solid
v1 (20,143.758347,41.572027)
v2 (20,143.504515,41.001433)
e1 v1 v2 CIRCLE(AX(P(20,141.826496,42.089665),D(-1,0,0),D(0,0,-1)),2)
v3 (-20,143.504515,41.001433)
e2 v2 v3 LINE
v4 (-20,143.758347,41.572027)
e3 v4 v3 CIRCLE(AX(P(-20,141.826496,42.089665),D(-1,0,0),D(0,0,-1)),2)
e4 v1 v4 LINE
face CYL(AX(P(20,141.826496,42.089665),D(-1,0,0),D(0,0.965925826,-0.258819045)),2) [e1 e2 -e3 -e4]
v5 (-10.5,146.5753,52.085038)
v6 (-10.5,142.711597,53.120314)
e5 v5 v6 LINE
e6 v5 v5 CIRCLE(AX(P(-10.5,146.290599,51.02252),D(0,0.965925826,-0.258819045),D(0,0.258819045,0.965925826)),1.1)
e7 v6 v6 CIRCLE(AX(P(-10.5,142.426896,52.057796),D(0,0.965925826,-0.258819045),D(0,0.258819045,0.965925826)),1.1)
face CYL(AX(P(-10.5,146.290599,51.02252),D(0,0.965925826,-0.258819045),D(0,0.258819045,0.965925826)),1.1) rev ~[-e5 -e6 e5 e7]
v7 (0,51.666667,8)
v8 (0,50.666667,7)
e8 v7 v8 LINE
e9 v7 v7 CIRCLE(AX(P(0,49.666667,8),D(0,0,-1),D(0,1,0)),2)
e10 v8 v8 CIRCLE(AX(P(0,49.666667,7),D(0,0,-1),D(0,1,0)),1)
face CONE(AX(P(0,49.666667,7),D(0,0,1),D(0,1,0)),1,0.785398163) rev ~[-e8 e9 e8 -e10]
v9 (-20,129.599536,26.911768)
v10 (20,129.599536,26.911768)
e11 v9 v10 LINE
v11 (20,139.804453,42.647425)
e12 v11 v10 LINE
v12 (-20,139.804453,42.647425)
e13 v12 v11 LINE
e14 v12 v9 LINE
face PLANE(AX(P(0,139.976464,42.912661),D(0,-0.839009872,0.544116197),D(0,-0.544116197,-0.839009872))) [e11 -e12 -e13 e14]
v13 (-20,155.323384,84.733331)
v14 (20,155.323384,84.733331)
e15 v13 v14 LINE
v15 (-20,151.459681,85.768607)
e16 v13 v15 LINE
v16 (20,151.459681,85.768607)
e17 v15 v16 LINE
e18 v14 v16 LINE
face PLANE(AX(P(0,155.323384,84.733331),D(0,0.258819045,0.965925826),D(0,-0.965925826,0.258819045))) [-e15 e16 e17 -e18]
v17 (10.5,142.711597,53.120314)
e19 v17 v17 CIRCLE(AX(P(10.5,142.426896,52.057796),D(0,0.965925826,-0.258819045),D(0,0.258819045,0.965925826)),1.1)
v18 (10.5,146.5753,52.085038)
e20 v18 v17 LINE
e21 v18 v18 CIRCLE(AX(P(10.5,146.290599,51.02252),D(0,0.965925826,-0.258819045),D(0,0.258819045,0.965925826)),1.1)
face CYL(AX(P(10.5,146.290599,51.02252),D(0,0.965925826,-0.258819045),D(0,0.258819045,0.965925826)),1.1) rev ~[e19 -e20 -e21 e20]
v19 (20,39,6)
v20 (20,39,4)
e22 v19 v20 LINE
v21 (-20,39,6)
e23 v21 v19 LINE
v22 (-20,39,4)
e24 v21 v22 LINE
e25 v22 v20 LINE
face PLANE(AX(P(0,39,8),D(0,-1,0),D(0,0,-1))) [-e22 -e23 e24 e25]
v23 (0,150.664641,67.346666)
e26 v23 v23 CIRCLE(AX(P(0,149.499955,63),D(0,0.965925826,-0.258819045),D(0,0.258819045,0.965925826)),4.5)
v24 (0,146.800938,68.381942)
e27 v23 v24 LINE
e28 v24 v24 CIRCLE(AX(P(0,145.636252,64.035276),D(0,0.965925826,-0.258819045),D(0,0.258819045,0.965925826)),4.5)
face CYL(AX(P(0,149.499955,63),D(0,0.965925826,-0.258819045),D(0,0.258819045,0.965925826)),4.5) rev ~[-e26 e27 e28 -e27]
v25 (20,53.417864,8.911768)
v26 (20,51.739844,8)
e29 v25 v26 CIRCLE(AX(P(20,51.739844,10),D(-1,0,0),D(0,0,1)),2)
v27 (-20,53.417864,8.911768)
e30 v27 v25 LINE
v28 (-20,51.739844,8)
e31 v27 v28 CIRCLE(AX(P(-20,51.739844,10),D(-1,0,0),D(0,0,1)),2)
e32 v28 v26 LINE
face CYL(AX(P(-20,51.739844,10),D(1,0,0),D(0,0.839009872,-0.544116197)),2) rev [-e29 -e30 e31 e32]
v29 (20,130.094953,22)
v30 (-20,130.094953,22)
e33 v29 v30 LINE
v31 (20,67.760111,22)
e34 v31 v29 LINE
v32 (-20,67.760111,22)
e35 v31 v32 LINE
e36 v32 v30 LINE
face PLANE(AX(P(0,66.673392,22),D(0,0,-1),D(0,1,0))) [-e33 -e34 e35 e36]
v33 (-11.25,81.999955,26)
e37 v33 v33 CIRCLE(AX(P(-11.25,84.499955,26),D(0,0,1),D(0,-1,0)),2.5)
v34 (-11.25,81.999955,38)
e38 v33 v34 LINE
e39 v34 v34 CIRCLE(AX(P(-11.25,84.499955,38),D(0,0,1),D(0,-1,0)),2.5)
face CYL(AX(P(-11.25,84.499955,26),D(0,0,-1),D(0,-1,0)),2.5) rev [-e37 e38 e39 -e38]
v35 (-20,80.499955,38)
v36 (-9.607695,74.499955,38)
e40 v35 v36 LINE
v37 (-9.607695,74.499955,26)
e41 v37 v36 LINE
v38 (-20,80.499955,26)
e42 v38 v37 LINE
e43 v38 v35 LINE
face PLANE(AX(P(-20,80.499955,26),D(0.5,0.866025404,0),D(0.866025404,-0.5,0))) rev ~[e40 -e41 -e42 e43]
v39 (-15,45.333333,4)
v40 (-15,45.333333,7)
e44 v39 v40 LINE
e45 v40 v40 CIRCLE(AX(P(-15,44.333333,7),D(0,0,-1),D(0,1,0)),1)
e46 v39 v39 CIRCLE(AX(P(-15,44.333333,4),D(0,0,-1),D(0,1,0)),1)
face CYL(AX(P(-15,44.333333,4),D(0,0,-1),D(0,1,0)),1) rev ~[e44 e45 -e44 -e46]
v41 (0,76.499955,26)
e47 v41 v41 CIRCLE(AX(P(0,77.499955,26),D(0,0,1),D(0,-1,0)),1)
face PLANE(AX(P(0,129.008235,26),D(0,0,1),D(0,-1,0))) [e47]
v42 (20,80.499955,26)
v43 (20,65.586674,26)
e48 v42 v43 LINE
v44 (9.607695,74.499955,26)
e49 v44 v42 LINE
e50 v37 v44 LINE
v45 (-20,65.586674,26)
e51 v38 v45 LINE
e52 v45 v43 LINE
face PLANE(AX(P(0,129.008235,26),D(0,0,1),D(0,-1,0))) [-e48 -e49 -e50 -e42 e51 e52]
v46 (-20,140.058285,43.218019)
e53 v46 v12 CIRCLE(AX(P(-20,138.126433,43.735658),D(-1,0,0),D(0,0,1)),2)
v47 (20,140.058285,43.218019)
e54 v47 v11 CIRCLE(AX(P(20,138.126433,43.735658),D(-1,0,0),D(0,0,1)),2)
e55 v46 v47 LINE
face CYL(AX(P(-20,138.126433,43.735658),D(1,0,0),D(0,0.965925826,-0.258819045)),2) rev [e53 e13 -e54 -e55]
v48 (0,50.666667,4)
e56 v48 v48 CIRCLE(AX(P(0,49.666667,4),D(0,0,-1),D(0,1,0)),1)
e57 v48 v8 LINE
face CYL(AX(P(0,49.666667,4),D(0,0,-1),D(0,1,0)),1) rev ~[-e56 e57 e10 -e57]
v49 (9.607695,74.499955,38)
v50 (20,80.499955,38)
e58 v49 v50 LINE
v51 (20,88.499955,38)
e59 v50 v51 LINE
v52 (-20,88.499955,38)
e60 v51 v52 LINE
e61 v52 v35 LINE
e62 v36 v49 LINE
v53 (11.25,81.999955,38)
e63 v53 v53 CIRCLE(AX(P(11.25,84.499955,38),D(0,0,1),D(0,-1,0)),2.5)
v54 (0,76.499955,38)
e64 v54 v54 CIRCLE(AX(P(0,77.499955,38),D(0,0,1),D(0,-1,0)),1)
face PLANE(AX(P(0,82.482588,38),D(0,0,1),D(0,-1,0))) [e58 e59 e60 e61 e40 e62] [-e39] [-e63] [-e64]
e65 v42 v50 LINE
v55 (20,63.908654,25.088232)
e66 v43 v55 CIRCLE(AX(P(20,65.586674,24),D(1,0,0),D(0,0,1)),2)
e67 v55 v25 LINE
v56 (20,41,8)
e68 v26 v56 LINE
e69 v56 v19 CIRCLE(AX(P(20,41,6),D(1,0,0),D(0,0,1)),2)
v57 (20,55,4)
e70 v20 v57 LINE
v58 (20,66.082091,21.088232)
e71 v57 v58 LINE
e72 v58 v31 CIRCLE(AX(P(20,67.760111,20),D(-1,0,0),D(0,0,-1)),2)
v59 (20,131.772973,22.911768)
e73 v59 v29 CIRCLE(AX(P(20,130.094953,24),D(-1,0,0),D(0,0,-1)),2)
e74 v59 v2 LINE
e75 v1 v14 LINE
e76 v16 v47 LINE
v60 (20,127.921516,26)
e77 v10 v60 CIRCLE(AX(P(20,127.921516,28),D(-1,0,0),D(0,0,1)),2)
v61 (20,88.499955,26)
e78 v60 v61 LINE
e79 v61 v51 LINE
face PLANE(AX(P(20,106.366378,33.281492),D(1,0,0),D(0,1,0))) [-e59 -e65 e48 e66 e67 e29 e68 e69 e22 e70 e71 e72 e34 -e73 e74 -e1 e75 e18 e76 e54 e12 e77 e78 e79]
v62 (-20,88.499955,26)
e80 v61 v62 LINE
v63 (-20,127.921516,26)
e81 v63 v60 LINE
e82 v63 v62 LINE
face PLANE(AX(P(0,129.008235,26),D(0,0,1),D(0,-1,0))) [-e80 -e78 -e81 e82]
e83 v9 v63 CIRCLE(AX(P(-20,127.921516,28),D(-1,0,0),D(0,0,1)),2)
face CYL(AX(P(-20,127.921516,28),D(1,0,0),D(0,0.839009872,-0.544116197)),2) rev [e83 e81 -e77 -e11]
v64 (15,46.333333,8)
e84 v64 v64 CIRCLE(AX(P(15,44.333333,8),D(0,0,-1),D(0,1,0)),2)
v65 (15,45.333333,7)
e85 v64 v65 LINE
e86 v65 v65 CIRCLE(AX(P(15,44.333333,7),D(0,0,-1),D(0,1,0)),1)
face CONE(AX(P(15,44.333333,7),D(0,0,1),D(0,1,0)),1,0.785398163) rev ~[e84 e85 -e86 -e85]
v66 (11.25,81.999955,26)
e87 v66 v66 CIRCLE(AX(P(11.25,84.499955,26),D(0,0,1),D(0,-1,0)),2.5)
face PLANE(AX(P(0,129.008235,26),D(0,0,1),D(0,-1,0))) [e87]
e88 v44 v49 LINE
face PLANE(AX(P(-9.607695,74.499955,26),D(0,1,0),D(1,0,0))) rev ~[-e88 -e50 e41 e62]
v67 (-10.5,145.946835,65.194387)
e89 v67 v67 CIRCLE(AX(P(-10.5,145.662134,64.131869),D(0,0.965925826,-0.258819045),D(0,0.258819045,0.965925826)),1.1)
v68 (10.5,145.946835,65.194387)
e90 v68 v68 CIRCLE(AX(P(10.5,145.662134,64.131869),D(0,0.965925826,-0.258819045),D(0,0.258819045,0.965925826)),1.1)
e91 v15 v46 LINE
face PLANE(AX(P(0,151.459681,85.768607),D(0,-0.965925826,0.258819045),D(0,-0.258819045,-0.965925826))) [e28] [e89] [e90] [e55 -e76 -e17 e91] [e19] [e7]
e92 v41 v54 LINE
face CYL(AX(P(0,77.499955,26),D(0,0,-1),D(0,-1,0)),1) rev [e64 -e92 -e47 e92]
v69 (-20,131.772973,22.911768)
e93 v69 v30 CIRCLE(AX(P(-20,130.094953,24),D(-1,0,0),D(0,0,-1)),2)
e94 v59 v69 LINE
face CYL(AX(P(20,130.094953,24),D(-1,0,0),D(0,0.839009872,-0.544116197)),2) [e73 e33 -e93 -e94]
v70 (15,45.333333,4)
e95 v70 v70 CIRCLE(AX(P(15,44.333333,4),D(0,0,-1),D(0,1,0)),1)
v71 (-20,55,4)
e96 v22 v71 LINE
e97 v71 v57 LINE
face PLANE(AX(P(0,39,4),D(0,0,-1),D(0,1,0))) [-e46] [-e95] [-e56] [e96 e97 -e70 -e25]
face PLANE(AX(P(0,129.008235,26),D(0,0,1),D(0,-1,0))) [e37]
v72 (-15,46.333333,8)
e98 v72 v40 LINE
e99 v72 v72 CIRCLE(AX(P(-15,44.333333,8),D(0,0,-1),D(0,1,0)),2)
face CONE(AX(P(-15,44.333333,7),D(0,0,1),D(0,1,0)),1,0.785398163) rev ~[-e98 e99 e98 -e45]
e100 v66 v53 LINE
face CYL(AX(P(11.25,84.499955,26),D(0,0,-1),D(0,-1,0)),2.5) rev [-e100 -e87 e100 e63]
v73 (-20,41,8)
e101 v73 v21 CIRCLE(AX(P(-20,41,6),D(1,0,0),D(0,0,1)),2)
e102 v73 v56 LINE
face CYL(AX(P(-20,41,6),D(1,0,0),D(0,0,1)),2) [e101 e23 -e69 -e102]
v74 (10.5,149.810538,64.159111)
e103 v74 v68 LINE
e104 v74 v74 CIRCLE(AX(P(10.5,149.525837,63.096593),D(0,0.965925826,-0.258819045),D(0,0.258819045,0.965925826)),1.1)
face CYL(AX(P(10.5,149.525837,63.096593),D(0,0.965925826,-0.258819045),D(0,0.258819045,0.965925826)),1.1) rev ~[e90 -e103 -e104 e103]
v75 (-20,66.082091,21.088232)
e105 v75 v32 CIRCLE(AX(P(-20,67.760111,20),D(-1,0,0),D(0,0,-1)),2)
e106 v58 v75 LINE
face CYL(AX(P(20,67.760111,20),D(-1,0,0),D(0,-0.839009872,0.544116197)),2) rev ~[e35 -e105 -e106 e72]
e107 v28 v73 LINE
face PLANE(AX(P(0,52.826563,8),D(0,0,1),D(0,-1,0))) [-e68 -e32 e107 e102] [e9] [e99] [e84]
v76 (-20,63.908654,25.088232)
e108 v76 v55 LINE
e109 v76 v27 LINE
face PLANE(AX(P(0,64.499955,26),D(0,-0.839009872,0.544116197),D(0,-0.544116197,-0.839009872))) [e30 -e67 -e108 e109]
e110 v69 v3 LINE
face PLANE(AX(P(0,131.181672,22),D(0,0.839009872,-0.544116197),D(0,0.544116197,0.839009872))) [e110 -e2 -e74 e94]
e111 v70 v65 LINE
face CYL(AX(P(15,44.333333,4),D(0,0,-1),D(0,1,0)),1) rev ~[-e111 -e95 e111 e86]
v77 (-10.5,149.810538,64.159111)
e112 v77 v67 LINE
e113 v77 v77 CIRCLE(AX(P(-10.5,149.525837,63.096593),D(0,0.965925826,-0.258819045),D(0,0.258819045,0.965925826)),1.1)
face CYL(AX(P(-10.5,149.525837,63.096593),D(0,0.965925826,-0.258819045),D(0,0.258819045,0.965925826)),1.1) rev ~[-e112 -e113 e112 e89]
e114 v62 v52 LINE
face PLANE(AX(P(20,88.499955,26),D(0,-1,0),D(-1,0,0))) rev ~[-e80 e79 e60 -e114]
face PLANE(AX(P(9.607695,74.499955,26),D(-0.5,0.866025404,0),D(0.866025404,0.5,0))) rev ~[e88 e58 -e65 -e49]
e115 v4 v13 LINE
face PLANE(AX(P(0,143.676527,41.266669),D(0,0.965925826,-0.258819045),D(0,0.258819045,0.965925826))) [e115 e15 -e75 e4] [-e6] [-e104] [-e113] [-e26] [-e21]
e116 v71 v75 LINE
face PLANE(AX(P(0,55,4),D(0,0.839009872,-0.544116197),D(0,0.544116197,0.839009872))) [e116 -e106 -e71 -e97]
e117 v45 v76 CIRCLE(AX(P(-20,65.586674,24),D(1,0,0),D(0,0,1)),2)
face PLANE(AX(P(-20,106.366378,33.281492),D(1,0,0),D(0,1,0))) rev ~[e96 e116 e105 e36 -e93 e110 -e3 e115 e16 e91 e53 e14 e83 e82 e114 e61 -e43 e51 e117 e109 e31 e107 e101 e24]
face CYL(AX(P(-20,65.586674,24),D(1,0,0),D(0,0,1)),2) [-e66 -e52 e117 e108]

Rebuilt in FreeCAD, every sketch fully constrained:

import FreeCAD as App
import Part
import Sketcher
Q = App.Units.Quantity


def edges_at(feature, points):
    """Names of the edges that pass closest to the given points."""
    edges = feature.Shape.Edges
    near = lambda p: min(range(len(edges)), key=lambda i: edges[i].distToShape(Part.Vertex(*p))[0])
    return sorted({f"Edge{near(p) + 1}" for p in points})

doc = App.newDocument("Part")
body = doc.addObject("PartDesign::Body", "Body")

# Sketch on YZ plane
sketch1 = doc.addObject("Sketcher::SketchObject", "Sketch")
body.addObject(sketch1)
sketch1.AttachmentSupport = (doc.YZ_Plane, [""])
sketch1.MapMode = "FlatFace"
sketch1.addGeometry([
    Part.LineSegment(App.Vector(143.7, 41.3, 0), App.Vector(155.3, 84.7, 0)),  # 0
    Part.LineSegment(App.Vector(155.3, 84.7, 0), App.Vector(151.5, 85.8, 0)),  # 1
    Part.LineSegment(App.Vector(151.5, 85.8, 0), App.Vector(140, 42.9, 0)),  # 2
    Part.LineSegment(App.Vector(140, 42.9, 0), App.Vector(129, 26, 0)),  # 3
    Part.LineSegment(App.Vector(129, 26, 0), App.Vector(64.5, 26, 0)),  # 4
    Part.LineSegment(App.Vector(64.5, 26, 0), App.Vector(52.8, 8, 0)),  # 5
    Part.LineSegment(App.Vector(52.8, 8, 0), App.Vector(39, 8, 0)),  # 6
    Part.LineSegment(App.Vector(39, 8, 0), App.Vector(39, 4, 0)),  # 7
    Part.LineSegment(App.Vector(39, 4, 0), App.Vector(55, 4, 0)),  # 8
    Part.LineSegment(App.Vector(55, 4, 0), App.Vector(66.7, 22, 0)),  # 9
    Part.LineSegment(App.Vector(66.7, 22, 0), App.Vector(131.2, 22, 0)),  # 10
    Part.LineSegment(App.Vector(131.2, 22, 0), App.Vector(143.7, 41.3, 0)),  # 11
], False)
sketch1.addConstraint([
    Sketcher.Constraint("Coincident", 0, 2, 1, 1),
    Sketcher.Constraint("Coincident", 1, 2, 2, 1),
    Sketcher.Constraint("Coincident", 2, 2, 3, 1),
    Sketcher.Constraint("Coincident", 3, 2, 4, 1),
    Sketcher.Constraint("Coincident", 4, 2, 5, 1),
    Sketcher.Constraint("Coincident", 5, 2, 6, 1),
    Sketcher.Constraint("Coincident", 6, 2, 7, 1),
    Sketcher.Constraint("Coincident", 7, 2, 8, 1),
    Sketcher.Constraint("Coincident", 8, 2, 9, 1),
    Sketcher.Constraint("Coincident", 9, 2, 10, 1),
    Sketcher.Constraint("Coincident", 10, 2, 11, 1),
    Sketcher.Constraint("Coincident", 11, 2, 0, 1),
    Sketcher.Constraint("Horizontal", 4),
    Sketcher.Constraint("Horizontal", 6),
    Sketcher.Constraint("Vertical", 7),
    Sketcher.Constraint("Horizontal", 8),
    Sketcher.Constraint("Horizontal", 10),
    Sketcher.Constraint("Perpendicular", 0, 1),
    Sketcher.Constraint("Perpendicular", 1, 2),
    Sketcher.Constraint("Parallel", 3, 5),
    Sketcher.Constraint("Parallel", 5, 9),
    Sketcher.Constraint("Parallel", 9, 11),
    Sketcher.Constraint("Equal", 4, 10),
    Sketcher.Constraint("Equal", 5, 9),
    Sketcher.Constraint("DistanceX", 8, 1, 8, 2, 16.0),
    Sketcher.Constraint("DistanceY", 7, 2, 7, 1, 4.0),
    Sketcher.Constraint("Angle", 0, Q("75 deg")),
    Sketcher.Constraint("Distance", 0, 45.0),
    Sketcher.Constraint("Distance", 1, 4.0),
    Sketcher.Constraint("DistanceY", -1, 1, 3, 2, 26.0),
    Sketcher.Constraint("DistanceY", -1, 1, 5, 2, 8.0),
    Sketcher.Constraint("DistanceX", -1, 1, 6, 2, 39.0),
    Sketcher.Constraint("DistanceX", 4, 2, 4, 1, 64.508279),
    Sketcher.Constraint("DistanceX", 5, 2, 2, 2, 87.149902),
    Sketcher.Constraint("Distance", 2, 44.36774),
    Sketcher.Constraint("Distance", 3, 20.157881),
])
pad1 = doc.addObject("PartDesign::Pad", "Pad")
body.addObject(pad1)
pad1.Profile = sketch1
pad1.Length = 40
pad1.Midplane = True

# Sketch on an angled plane
sketch2 = doc.addObject("Sketcher::SketchObject", "Sketch001")
body.addObject(sketch2)
sketch2.Placement = App.Placement(App.Vector(0, 123.735357, -33.154789), App.Rotation(App.Vector(0, 0.258819045, 0.965925826), App.Vector(0.999999999, 0, 0), App.Vector(0, 0.965925826, -0.258819045), "ZXY"))
sketch2.addGeometry([
    Part.Circle(App.Vector(99.5, 0, 0), App.Vector(0, 0, 1), 4.5),  # 0
    Part.Circle(App.Vector(99.6, 10.5, 0), App.Vector(0, 0, 1), 1.1),  # 1
    Part.Circle(App.Vector(99.6, -10.5, 0), App.Vector(0, 0, 1), 1.1),  # 2
    Part.Circle(App.Vector(87.1, -10.5, 0), App.Vector(0, 0, 1), 1.1),  # 3
    Part.Circle(App.Vector(87.1, 10.5, 0), App.Vector(0, 0, 1), 1.1),  # 4
], False)
sketch2.addConstraint([
    Sketcher.Constraint("Equal", 1, 2),
    Sketcher.Constraint("Equal", 2, 3),
    Sketcher.Constraint("Equal", 3, 4),
    Sketcher.Constraint("Symmetric", 1, 3, 2, 3, -1),
    Sketcher.Constraint("Symmetric", 3, 3, 4, 3, -1),
    Sketcher.Constraint("PointOnObject", 0, 3, -1),
    Sketcher.Constraint("Horizontal", 2, 3, 3, 3),
    Sketcher.Constraint("Diameter", 0, 9.0),
    Sketcher.Constraint("Diameter", 1, 2.2),
    Sketcher.Constraint("DistanceY", 2, 3, 1, 3, 21.0),
    Sketcher.Constraint("DistanceX", 0, 3, 1, 3, 0.1),
    Sketcher.Constraint("DistanceX", 3, 3, 2, 3, 12.5),
    Sketcher.Constraint("DistanceX", -1, 1, 0, 3, 99.546763),
])
pocket1 = doc.addObject("PartDesign::Pocket", "Pocket")
body.addObject(pocket1)
pocket1.Profile = sketch2
pocket1.Type = "ThroughAll"

# Sketch on XY plane
sketch3 = doc.addObject("Sketcher::SketchObject", "Sketch002")
body.addObject(sketch3)
sketch3.AttachmentSupport = (doc.XY_Plane, [""])
sketch3.MapMode = "FlatFace"
sketch3.AttachmentOffset = App.Placement(App.Vector(0, 0, 26), App.Rotation())
sketch3.addGeometry([
    Part.LineSegment(App.Vector(20, 80.5, 0), App.Vector(20, 88.5, 0)),  # 0
    Part.LineSegment(App.Vector(20, 88.5, 0), App.Vector(-20, 88.5, 0)),  # 1
    Part.LineSegment(App.Vector(-20, 88.5, 0), App.Vector(-20, 80.5, 0)),  # 2
    Part.LineSegment(App.Vector(-20, 80.5, 0), App.Vector(-9.6, 74.5, 0)),  # 3
    Part.LineSegment(App.Vector(-9.6, 74.5, 0), App.Vector(9.6, 74.5, 0)),  # 4
    Part.LineSegment(App.Vector(9.6, 74.5, 0), App.Vector(20, 80.5, 0)),  # 5
    Part.Circle(App.Vector(-11.2, 84.5, 0), App.Vector(0, 0, 1), 2.5),  # 6
    Part.Circle(App.Vector(11.2, 84.5, 0), App.Vector(0, 0, 1), 2.5),  # 7
    Part.Circle(App.Vector(0, 77.5, 0), App.Vector(0, 0, 1), 1),  # 8
], False)
sketch3.addConstraint([
    Sketcher.Constraint("Coincident", 0, 2, 1, 1),
    Sketcher.Constraint("Coincident", 1, 2, 2, 1),
    Sketcher.Constraint("Coincident", 2, 2, 3, 1),
    Sketcher.Constraint("Coincident", 3, 2, 4, 1),
    Sketcher.Constraint("Coincident", 4, 2, 5, 1),
    Sketcher.Constraint("Coincident", 5, 2, 0, 1),
    Sketcher.Constraint("Vertical", 0),
    Sketcher.Constraint("Horizontal", 1),
    Sketcher.Constraint("Vertical", 2),
    Sketcher.Constraint("Horizontal", 4),
    Sketcher.Constraint("Equal", 6, 7),
    Sketcher.Constraint("Symmetric", 6, 3, 7, 3, -2),
    Sketcher.Constraint("Symmetric", 2, 2, 5, 2, -2),
    Sketcher.Constraint("PointOnObject", 8, 3, -2),
    Sketcher.Constraint("Equal", 3, 5),
    Sketcher.Constraint("Diameter", 6, 5.0),
    Sketcher.Constraint("Diameter", 8, 2.0),
    Sketcher.Constraint("DistanceX", 1, 2, 1, 1, 40.0),
    Sketcher.Constraint("DistanceY", 0, 1, 0, 2, 8.0),
    Sketcher.Constraint("Angle", 3, Q("-30 deg")),
    Sketcher.Constraint("Distance", 3, 12.0),
    Sketcher.Constraint("DistanceY", 8, 3, 6, 3, 7.0),
    Sketcher.Constraint("DistanceY", 7, 3, 0, 2, 4.0),
    Sketcher.Constraint("DistanceX", 6, 3, 7, 3, 22.5),
    Sketcher.Constraint("DistanceY", -1, 1, 6, 3, 84.499955),
])
pad2 = doc.addObject("PartDesign::Pad", "Pad001")
body.addObject(pad2)
pad2.Profile = sketch3
pad2.Length = 12
doc.recompute()

fillet = doc.addObject("PartDesign::Fillet", "Fillet")
body.addObject(fillet)
fillet.Base = (pad2, edges_at(pad2, [
    (0, 139.976, 42.913),
    (0, 52.827, 8),
    (0, 129.008, 26),
    (0, 64.5, 26),
    (0, 39, 8),
    (0, 143.677, 41.267),
    (0, 131.182, 22),
    (0, 66.673, 22),
]))
fillet.Radius = 2

# Sketch on XY plane
sketch4 = doc.addObject("Sketcher::SketchObject", "Sketch003")
body.addObject(sketch4)
sketch4.AttachmentSupport = (doc.XY_Plane, [""])
sketch4.MapMode = "FlatFace"
sketch4.AttachmentOffset = App.Placement(App.Vector(0, 0, 4), App.Rotation())
sketch4.addGeometry([
    Part.Circle(App.Vector(15, 44.3, 0), App.Vector(0, 0, 1), 1),
    Part.Circle(App.Vector(-15, 44.3, 0), App.Vector(0, 0, 1), 1),
    Part.Circle(App.Vector(0, 49.7, 0), App.Vector(0, 0, 1), 1),
], False)
sketch4.addConstraint([
    Sketcher.Constraint("Equal", 0, 1),
    Sketcher.Constraint("Equal", 1, 2),
    Sketcher.Constraint("Symmetric", 0, 3, 1, 3, -2),
    Sketcher.Constraint("PointOnObject", 2, 3, -2),
    Sketcher.Constraint("Diameter", 0, 2.0),
    Sketcher.Constraint("DistanceX", -1, 1, 0, 3, 15.0),
    Sketcher.Constraint("DistanceY", -1, 1, 0, 3, 44.333333),
    Sketcher.Constraint("DistanceY", -1, 1, 2, 3, 49.666667),
])
pocket2 = doc.addObject("PartDesign::Pocket", "Pocket001")
body.addObject(pocket2)
pocket2.Profile = sketch4
pocket2.Length = 5
pocket2.Reversed = True
doc.recompute()

chamfer = doc.addObject("PartDesign::Chamfer", "Chamfer")
body.addObject(chamfer)
chamfer.Base = (pocket2, edges_at(pocket2, [(15, 43.333, 8), (0, 48.667, 8), (-15, 43.333, 8)]))
chamfer.Size = 1

doc.recompute()
